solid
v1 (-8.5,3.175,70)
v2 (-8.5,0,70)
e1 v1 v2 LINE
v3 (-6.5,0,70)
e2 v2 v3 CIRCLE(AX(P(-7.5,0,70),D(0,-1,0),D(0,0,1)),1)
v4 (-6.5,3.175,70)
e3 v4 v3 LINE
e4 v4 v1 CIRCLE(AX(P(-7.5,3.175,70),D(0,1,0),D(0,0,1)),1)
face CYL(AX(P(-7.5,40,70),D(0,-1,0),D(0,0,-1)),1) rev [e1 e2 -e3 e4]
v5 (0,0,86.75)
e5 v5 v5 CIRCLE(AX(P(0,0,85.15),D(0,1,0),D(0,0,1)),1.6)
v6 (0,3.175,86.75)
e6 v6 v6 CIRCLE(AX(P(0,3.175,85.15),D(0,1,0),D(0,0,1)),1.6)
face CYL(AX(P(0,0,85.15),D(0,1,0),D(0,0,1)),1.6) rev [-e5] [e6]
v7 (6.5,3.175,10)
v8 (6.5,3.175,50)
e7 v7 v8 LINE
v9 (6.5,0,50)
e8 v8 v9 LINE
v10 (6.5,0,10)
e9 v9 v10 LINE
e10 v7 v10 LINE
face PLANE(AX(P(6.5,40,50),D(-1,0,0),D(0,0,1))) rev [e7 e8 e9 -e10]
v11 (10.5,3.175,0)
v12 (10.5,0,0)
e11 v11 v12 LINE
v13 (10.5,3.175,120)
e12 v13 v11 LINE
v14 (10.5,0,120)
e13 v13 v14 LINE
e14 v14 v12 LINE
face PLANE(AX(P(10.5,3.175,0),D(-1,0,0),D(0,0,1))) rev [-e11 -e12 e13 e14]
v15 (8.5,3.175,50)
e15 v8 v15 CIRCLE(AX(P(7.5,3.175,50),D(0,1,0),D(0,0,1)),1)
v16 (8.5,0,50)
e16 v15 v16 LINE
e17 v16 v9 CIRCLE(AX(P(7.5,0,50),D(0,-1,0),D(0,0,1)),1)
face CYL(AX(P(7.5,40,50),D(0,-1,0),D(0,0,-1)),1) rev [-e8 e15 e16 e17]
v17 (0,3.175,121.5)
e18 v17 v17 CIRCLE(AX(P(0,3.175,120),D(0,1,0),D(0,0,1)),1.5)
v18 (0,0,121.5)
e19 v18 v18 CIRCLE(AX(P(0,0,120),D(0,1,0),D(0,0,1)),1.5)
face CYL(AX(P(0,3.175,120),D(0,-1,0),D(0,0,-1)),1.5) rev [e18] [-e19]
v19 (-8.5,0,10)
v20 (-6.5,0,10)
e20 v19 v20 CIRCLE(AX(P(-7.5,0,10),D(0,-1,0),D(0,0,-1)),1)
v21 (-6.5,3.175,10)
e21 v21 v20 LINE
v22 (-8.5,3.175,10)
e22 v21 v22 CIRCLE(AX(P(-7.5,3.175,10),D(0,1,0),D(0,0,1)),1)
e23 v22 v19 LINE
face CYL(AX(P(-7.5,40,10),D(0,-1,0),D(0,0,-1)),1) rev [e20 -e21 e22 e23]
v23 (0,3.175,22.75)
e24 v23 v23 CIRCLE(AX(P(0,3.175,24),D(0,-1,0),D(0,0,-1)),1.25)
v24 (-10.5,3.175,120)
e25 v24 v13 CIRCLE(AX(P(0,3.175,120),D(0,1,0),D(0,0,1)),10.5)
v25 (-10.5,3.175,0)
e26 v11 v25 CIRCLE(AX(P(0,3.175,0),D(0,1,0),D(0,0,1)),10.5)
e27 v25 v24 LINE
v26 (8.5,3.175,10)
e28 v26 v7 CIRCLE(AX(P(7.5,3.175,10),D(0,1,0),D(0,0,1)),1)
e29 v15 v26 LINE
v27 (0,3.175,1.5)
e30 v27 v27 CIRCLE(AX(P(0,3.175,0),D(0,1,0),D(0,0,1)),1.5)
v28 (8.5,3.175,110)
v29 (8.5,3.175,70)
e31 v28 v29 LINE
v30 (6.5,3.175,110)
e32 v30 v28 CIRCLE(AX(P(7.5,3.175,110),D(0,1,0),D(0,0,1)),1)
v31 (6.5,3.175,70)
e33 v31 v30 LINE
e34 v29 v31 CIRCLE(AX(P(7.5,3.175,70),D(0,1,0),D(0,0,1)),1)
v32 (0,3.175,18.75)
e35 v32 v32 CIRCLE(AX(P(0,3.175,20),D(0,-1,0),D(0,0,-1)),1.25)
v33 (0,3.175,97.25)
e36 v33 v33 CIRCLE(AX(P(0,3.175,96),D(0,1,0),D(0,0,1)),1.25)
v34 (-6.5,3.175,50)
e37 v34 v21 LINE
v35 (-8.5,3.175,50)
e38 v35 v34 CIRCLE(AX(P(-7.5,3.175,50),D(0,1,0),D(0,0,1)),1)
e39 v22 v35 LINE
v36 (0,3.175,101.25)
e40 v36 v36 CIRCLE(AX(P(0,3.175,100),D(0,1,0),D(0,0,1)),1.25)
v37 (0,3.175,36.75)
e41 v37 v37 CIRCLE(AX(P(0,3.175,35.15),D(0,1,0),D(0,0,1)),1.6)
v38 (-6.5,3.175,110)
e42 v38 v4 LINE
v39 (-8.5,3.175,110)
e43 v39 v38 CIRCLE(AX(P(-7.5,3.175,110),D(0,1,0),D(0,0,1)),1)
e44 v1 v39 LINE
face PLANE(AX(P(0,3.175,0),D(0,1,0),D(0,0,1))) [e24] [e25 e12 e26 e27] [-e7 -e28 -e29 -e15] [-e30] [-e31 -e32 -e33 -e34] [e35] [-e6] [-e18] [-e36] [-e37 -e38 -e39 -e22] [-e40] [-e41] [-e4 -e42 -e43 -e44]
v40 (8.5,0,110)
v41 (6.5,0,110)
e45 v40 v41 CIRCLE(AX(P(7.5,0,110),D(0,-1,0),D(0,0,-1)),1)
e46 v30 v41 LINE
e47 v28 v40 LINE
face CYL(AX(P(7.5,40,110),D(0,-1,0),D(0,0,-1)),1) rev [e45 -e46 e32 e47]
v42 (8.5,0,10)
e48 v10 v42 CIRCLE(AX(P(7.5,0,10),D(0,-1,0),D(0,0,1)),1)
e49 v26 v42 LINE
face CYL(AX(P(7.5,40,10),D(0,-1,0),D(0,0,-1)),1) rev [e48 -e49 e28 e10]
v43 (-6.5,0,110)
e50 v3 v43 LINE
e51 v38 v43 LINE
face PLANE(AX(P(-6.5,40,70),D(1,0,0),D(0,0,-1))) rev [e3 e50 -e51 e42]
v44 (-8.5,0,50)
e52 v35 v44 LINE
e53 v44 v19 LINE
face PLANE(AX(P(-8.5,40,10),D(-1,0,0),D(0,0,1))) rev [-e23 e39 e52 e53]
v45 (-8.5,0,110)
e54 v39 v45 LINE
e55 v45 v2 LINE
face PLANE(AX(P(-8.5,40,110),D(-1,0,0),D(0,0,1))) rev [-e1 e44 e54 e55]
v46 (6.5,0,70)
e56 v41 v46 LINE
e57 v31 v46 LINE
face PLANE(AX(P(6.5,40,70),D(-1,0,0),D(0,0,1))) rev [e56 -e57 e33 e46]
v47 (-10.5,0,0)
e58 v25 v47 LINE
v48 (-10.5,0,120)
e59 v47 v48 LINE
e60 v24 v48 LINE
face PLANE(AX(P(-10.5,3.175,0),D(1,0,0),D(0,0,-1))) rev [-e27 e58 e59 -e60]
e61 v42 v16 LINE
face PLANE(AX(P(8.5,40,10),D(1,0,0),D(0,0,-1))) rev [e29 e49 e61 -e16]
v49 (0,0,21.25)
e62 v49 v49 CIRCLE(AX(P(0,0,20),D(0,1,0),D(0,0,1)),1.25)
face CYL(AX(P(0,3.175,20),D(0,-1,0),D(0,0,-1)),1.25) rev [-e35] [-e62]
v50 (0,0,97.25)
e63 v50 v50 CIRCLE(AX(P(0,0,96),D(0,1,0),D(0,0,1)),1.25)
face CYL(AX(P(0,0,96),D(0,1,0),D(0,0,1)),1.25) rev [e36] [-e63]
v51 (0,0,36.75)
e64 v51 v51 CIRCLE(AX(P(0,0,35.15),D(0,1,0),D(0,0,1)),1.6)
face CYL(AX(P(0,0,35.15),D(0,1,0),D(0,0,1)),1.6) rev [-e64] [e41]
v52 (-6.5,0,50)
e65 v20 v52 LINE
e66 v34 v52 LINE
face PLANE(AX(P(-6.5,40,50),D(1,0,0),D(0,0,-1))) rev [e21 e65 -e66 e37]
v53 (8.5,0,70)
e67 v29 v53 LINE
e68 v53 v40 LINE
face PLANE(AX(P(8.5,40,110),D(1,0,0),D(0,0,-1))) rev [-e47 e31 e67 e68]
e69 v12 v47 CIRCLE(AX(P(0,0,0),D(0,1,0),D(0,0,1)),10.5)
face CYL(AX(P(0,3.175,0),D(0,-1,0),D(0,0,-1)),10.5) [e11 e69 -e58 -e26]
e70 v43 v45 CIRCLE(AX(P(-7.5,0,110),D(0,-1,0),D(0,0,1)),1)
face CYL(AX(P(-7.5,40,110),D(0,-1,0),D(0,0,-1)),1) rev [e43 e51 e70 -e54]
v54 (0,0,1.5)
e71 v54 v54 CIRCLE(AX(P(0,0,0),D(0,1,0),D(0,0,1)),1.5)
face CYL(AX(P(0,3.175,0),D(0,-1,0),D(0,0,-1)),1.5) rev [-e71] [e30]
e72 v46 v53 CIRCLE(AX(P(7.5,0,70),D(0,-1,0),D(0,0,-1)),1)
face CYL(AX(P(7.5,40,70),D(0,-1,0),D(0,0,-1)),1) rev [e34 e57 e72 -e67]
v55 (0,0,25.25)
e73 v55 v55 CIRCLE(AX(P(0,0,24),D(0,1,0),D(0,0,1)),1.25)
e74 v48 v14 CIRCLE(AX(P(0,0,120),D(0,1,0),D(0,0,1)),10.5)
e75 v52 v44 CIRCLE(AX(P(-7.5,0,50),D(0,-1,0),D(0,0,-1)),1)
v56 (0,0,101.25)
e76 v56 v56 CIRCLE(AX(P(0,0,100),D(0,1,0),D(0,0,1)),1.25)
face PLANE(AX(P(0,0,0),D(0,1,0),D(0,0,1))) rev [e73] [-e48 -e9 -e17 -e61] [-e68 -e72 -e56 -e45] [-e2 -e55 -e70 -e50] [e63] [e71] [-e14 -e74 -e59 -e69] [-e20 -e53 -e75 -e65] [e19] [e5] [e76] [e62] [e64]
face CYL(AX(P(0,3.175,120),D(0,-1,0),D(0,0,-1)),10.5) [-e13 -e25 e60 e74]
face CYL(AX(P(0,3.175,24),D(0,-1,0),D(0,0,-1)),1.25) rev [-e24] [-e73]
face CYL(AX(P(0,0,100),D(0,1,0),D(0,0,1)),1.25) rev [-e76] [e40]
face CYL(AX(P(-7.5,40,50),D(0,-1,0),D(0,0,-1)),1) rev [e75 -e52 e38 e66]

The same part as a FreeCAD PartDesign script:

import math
import FreeCAD as App
import Part
import Sketcher
Q = App.Units.Quantity

doc = App.newDocument("Part")
body = doc.addObject("PartDesign::Body", "Body")

# Sketch on XZ plane
sketch1 = doc.addObject("Sketcher::SketchObject", "Sketch")
body.addObject(sketch1)
sketch1.AttachmentSupport = (doc.XZ_Plane, [""])
sketch1.MapMode = "FlatFace"
sketch1.addGeometry([
    Part.LineSegment(App.Vector(-10.5, 0, 0), App.Vector(-10.5, 120, 0)),  # 0
    Part.ArcOfCircle(Part.Circle(App.Vector(0, 120, 0), App.Vector(0, 0, 1), 10.5), math.radians(0), math.radians(180)),  # 1
    Part.LineSegment(App.Vector(10.5, 120, 0), App.Vector(10.5, 0, 0)),  # 2
    Part.ArcOfCircle(Part.Circle(App.Vector(0, 0, 0), App.Vector(0, 0, 1), 10.5), math.radians(180), math.radians(360)),  # 3
    Part.Circle(App.Vector(0, 120, 0), App.Vector(0, 0, 1), 1.5),  # 4
    Part.Circle(App.Vector(0, 0, 0), App.Vector(0, 0, 1), 1.5),  # 5
], False)
sketch1.addConstraint([
    Sketcher.Constraint("Tangent", 0, 2, 1, 2),
    Sketcher.Constraint("Tangent", 1, 1, 2, 1),
    Sketcher.Constraint("Tangent", 2, 2, 3, 2),
    Sketcher.Constraint("Tangent", 3, 1, 0, 1),
    Sketcher.Constraint("Vertical", 0),
    Sketcher.Constraint("Vertical", 2),
    Sketcher.Constraint("Coincident", 3, 3, -1, 1),
    Sketcher.Constraint("Coincident", 5, 3, -1, 1),
    Sketcher.Constraint("Coincident", 4, 3, 1, 3),
    Sketcher.Constraint("Equal", 4, 5),
    Sketcher.Constraint("Diameter", 4, Q("3 mm")),
    Sketcher.Constraint("Radius", 1, Q("10.5 mm")),
    Sketcher.Constraint("DistanceY", 0, 1, 0, 2, Q("120 mm")),
])
pad1 = doc.addObject("PartDesign::Pad", "Pad")
body.addObject(pad1)
pad1.Profile = sketch1
pad1.Length = 3.175
pad1.Reversed = True

# Sketch on XZ plane
sketch2 = doc.addObject("Sketcher::SketchObject", "Sketch001")
body.addObject(sketch2)
sketch2.AttachmentSupport = (doc.XZ_Plane, [""])
sketch2.MapMode = "FlatFace"
sketch2.addGeometry([
    Part.Circle(App.Vector(0, 20, 0), App.Vector(0, 0, 1), 1.25),
    Part.Circle(App.Vector(0, 24, 0), App.Vector(0, 0, 1), 1.25),
], False)
sketch2.addConstraint([
    Sketcher.Constraint("Equal", 0, 1),
    Sketcher.Constraint("PointOnObject", 0, 3, -2),
    Sketcher.Constraint("PointOnObject", 1, 3, -2),
    Sketcher.Constraint("Diameter", 0, Q("2.5 mm")),
    Sketcher.Constraint("DistanceY", -1, 1, 0, 3, Q("20 mm")),
    Sketcher.Constraint("DistanceY", -1, 1, 1, 3, Q("24 mm")),
])
pocket1 = doc.addObject("PartDesign::Pocket", "Pocket")
body.addObject(pocket1)
pocket1.Profile = sketch2
pocket1.Type = "ThroughAll"
pocket1.Midplane = True

# Sketch on XZ plane
sketch3 = doc.addObject("Sketcher::SketchObject", "Sketch002")
body.addObject(sketch3)
sketch3.AttachmentSupport = (doc.XZ_Plane, [""])
sketch3.MapMode = "FlatFace"
sketch3.AttachmentOffset = App.Placement(App.Vector(0, 0, -3.175), App.Rotation())
sketch3.addGeometry([
    Part.Circle(App.Vector(0, 96, 0), App.Vector(0, 0, 1), 1.25),
    Part.Circle(App.Vector(0, 100, 0), App.Vector(0, 0, 1), 1.25),
], False)
sketch3.addConstraint([
    Sketcher.Constraint("Equal", 0, 1),
    Sketcher.Constraint("PointOnObject", 0, 3, -2),
    Sketcher.Constraint("PointOnObject", 1, 3, -2),
    Sketcher.Constraint("Diameter", 0, Q("2.5 mm")),
    Sketcher.Constraint("DistanceY", -1, 1, 0, 3, Q("96 mm")),
    Sketcher.Constraint("DistanceY", -1, 1, 1, 3, Q("100 mm")),
])
pocket2 = doc.addObject("PartDesign::Pocket", "Pocket001")
body.addObject(pocket2)
pocket2.Profile = sketch3
pocket2.Type = "ThroughAll"
pocket2.Midplane = True

# Sketch on XZ plane
sketch4 = doc.addObject("Sketcher::SketchObject", "Sketch003")
body.addObject(sketch4)
sketch4.AttachmentSupport = (doc.XZ_Plane, [""])
sketch4.MapMode = "FlatFace"
sketch4.AttachmentOffset = App.Placement(App.Vector(0, 0, -3.175), App.Rotation())
sketch4.addGeometry([
    Part.Circle(App.Vector(0, 35.15, 0), App.Vector(0, 0, 1), 1.6),
    Part.Circle(App.Vector(0, 85.15, 0), App.Vector(0, 0, 1), 1.6),
], False)
sketch4.addConstraint([
    Sketcher.Constraint("Equal", 0, 1),
    Sketcher.Constraint("PointOnObject", 0, 3, -2),
    Sketcher.Constraint("PointOnObject", 1, 3, -2),
    Sketcher.Constraint("Diameter", 0, Q("3.2 mm")),
    Sketcher.Constraint("DistanceY", 0, 3, 1, 3, Q("50 mm")),
    Sketcher.Constraint("DistanceY", -1, 1, 0, 3, Q("35.15 mm")),
])
pocket3 = doc.addObject("PartDesign::Pocket", "Pocket002")
body.addObject(pocket3)
pocket3.Profile = sketch4
pocket3.Type = "ThroughAll"
pocket3.Midplane = True

# Sketch on XZ plane
sketch5 = doc.addObject("Sketcher::SketchObject", "Sketch004")
body.addObject(sketch5)
sketch5.AttachmentSupport = (doc.XZ_Plane, [""])
sketch5.MapMode = "FlatFace"
sketch5.addGeometry([
    Part.LineSegment(App.Vector(-8.5, 50, 0), App.Vector(-8.5, 10, 0)),  # 0
    Part.ArcOfCircle(Part.Circle(App.Vector(-7.5, 10, 0), App.Vector(0, 0, 1), 1), math.radians(180), math.radians(360)),  # 1
    Part.LineSegment(App.Vector(-6.5, 10, 0), App.Vector(-6.5, 50, 0)),  # 2
    Part.ArcOfCircle(Part.Circle(App.Vector(-7.5, 50, 0), App.Vector(0, 0, 1), 1), math.radians(0), math.radians(180)),  # 3
    Part.LineSegment(App.Vector(6.5, 50, 0), App.Vector(6.5, 10, 0)),  # 4
    Part.ArcOfCircle(Part.Circle(App.Vector(7.5, 10, 0), App.Vector(0, 0, 1), 1), math.radians(180), math.radians(360)),  # 5
    Part.LineSegment(App.Vector(8.5, 10, 0), App.Vector(8.5, 50, 0)),  # 6
    Part.ArcOfCircle(Part.Circle(App.Vector(7.5, 50, 0), App.Vector(0, 0, 1), 1), math.radians(0), math.radians(180)),  # 7
    Part.LineSegment(App.Vector(8.5, 70, 0), App.Vector(8.5, 110, 0)),  # 8
    Part.ArcOfCircle(Part.Circle(App.Vector(7.5, 110, 0), App.Vector(0, 0, 1), 1), math.radians(0), math.radians(180)),  # 9
    Part.LineSegment(App.Vector(6.5, 110, 0), App.Vector(6.5, 70, 0)),  # 10
    Part.ArcOfCircle(Part.Circle(App.Vector(7.5, 70, 0), App.Vector(0, 0, 1), 1), math.radians(180), math.radians(360)),  # 11
    Part.LineSegment(App.Vector(-6.5, 70, 0), App.Vector(-6.5, 110, 0)),  # 12
    Part.ArcOfCircle(Part.Circle(App.Vector(-7.5, 110, 0), App.Vector(0, 0, 1), 1), math.radians(0), math.radians(180)),  # 13
    Part.LineSegment(App.Vector(-8.5, 110, 0), App.Vector(-8.5, 70, 0)),  # 14
    Part.ArcOfCircle(Part.Circle(App.Vector(-7.5, 70, 0), App.Vector(0, 0, 1), 1), math.radians(180), math.radians(360)),  # 15
], False)
sketch5.addConstraint([
    Sketcher.Constraint("Tangent", 0, 2, 1, 1),
    Sketcher.Constraint("Tangent", 1, 2, 2, 1),
    Sketcher.Constraint("Tangent", 2, 2, 3, 1),
    Sketcher.Constraint("Tangent", 3, 2, 0, 1),
    Sketcher.Constraint("Tangent", 4, 2, 5, 1),
    Sketcher.Constraint("Tangent", 5, 2, 6, 1),
    Sketcher.Constraint("Tangent", 6, 2, 7, 1),
    Sketcher.Constraint("Tangent", 7, 2, 4, 1),
    Sketcher.Constraint("Tangent", 8, 2, 9, 1),
    Sketcher.Constraint("Tangent", 9, 2, 10, 1),
    Sketcher.Constraint("Tangent", 10, 2, 11, 1),
    Sketcher.Constraint("Tangent", 11, 2, 8, 1),
    Sketcher.Constraint("Tangent", 12, 2, 13, 1),
    Sketcher.Constraint("Tangent", 13, 2, 14, 1),
    Sketcher.Constraint("Tangent", 14, 2, 15, 1),
    Sketcher.Constraint("Tangent", 15, 2, 12, 1),
    Sketcher.Constraint("Vertical", 0),
    Sketcher.Constraint("Vertical", 2),
    Sketcher.Constraint("Vertical", 4),
    Sketcher.Constraint("Vertical", 6),
    Sketcher.Constraint("Vertical", 8),
    Sketcher.Constraint("Vertical", 10),
    Sketcher.Constraint("Vertical", 12),
    Sketcher.Constraint("Vertical", 14),
    Sketcher.Constraint("Equal", 3, 5),
    Sketcher.Constraint("Equal", 7, 9),
    Sketcher.Constraint("Equal", 11, 13),
    Sketcher.Constraint("Symmetric", 1, 3, 5, 3, -2),
    Sketcher.Constraint("Symmetric", 9, 3, 13, 3, -2),
    Sketcher.Constraint("Horizontal", 3, 3, 7, 3),
    Sketcher.Constraint("Horizontal", 11, 3, 15, 3),
    Sketcher.Constraint("Vertical", 7, 3, 9, 3),
    Sketcher.Constraint("Equal", 6, 8),
    Sketcher.Constraint("Radius", 1, Q("1 mm")),
    Sketcher.Constraint("DistanceY", 0, 2, 0, 1, Q("40 mm")),
    Sketcher.Constraint("DistanceY", -1, 1, 1, 3, Q("10 mm")),
    Sketcher.Constraint("DistanceY", -1, 1, 9, 3, Q("110 mm")),
    Sketcher.Constraint("DistanceX", 1, 3, 5, 3, Q("15 mm")),
])
pocket4 = doc.addObject("PartDesign::Pocket", "Pocket003")
body.addObject(pocket4)
pocket4.Profile = sketch5
pocket4.Length = 40

doc.recompute()
